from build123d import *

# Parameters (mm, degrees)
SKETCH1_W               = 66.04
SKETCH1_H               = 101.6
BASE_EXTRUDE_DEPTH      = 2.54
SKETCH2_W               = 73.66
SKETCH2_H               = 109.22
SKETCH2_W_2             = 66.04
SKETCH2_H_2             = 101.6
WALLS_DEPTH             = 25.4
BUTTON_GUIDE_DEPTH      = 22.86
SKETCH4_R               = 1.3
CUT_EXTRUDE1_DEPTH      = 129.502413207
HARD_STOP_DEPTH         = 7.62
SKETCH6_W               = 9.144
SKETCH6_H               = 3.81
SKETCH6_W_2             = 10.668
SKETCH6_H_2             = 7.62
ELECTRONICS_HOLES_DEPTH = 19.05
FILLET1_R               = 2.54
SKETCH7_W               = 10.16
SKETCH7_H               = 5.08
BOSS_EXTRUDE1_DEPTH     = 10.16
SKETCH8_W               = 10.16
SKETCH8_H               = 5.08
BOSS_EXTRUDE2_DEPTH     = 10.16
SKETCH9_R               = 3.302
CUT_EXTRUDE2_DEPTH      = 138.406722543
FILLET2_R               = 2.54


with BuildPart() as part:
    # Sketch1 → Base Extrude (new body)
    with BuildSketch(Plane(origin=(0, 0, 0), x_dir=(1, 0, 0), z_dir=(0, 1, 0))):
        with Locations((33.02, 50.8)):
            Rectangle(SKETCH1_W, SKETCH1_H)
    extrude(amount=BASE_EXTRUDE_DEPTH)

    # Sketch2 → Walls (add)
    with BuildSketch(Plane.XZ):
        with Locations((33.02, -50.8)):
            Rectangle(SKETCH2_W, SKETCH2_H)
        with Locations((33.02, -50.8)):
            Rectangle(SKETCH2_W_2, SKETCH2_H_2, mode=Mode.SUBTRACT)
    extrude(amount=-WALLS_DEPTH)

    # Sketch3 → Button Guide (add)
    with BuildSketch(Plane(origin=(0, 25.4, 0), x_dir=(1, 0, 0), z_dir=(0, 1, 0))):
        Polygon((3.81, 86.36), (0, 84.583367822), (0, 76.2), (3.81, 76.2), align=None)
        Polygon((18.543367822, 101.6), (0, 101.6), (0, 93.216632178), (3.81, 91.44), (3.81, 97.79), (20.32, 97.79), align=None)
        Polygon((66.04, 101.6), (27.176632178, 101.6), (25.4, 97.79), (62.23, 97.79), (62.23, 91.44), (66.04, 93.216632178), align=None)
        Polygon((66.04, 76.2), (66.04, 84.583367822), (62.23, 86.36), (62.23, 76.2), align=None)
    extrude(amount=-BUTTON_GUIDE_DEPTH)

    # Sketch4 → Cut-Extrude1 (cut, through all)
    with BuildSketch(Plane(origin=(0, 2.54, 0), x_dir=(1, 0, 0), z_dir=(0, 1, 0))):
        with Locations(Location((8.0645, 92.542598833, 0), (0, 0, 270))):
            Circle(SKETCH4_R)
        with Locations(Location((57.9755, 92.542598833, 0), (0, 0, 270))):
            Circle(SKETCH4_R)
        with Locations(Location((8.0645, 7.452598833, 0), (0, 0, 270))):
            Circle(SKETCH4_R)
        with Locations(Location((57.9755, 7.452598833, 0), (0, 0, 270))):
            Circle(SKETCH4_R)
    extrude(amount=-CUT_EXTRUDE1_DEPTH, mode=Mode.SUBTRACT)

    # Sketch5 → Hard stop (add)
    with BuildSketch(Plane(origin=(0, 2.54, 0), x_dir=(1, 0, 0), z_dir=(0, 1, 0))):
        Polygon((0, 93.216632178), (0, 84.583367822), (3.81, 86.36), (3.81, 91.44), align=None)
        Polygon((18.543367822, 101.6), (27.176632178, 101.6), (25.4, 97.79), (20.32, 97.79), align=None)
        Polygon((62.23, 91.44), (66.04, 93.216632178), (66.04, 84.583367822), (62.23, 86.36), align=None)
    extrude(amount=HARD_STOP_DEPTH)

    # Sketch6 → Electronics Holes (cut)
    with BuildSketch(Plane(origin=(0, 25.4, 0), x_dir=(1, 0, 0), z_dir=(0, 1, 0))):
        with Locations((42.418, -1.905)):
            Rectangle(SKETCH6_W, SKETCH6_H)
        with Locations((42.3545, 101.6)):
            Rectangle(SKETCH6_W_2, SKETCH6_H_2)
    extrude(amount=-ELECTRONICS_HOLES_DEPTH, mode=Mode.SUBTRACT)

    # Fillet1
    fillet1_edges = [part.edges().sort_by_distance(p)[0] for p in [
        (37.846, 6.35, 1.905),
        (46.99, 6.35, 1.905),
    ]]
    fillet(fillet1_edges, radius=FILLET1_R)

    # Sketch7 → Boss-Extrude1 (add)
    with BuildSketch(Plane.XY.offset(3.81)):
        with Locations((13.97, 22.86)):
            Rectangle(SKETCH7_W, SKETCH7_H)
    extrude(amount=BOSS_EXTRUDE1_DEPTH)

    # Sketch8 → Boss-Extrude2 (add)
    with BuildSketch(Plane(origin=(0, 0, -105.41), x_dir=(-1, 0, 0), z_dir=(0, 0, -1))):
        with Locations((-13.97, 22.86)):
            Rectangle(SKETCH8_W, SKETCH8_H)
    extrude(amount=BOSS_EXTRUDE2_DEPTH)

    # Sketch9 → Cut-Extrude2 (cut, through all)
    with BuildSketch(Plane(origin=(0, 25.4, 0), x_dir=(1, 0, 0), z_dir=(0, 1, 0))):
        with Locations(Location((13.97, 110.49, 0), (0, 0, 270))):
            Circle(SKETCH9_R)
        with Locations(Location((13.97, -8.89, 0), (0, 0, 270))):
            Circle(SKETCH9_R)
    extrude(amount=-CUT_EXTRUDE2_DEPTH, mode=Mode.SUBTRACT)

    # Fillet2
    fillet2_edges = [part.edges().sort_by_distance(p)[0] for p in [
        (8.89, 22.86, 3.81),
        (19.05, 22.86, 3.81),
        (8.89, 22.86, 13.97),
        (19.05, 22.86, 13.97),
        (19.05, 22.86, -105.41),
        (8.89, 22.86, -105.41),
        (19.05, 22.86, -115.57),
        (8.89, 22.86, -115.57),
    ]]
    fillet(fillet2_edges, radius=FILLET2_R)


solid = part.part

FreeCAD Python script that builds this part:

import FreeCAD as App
import Part
import Sketcher
from FreeCAD import Vector
Q = App.Units.Quantity


def edges_at(feature, points):
    """Names of the edges that pass closest to the given points."""
    edges = feature.Shape.Edges
    near = lambda p: min(range(len(edges)), key=lambda i: edges[i].distToShape(Part.Vertex(*p))[0])
    return sorted({f"Edge{near(p) + 1}" for p in points})


def add_polygon(sketch, points):
    """Adds a closed chain of lines whose ends are joined by coincident constraints."""
    first, n = sketch.GeometryCount, len(points)
    for a, b in zip(points, points[1:] + points[:1]):
        sketch.addGeometry(Part.LineSegment(App.Vector(*a, 0), App.Vector(*b, 0)), False)
    for i in range(n):
        sketch.addConstraint(Sketcher.Constraint("Coincident", first + i, 2, first + (i + 1) % n, 1))

doc = App.newDocument("Part")
body = doc.addObject("PartDesign::Body", "Body")

sketch1 = body.newObject("Sketcher::SketchObject", "Sketch")
sketch1.AttachmentSupport = (doc.getObject("XZ_Plane"), [""])
sketch1.MapMode = "FlatFace"
add_polygon(sketch1, [(0, -102), (0, 0), (66, 0), (66, -102)])
sketch1.addConstraint(Sketcher.Constraint("Vertical", 0))
sketch1.addConstraint(Sketcher.Constraint("Horizontal", 1))
sketch1.addConstraint(Sketcher.Constraint("Vertical", 2))
sketch1.addConstraint(Sketcher.Constraint("Horizontal", 3))
sketch1.addConstraint(Sketcher.Constraint("Coincident", 0, 2, -1, 1))
sketch1.addConstraint(Sketcher.Constraint("DistanceY", 0, 1, 0, 2, Q("4 in")))
sketch1.addConstraint(Sketcher.Constraint("DistanceX", 1, 1, 1, 2, Q("2.6 in")))
pad1 = body.newObject("PartDesign::Pad", "Pad")
pad1.Profile = sketch1
pad1.Length = Q("0.1 in")
pad1.Reversed = True

sketch2 = body.newObject("Sketcher::SketchObject", "Sketch001")
sketch2.AttachmentSupport = (doc.getObject("XZ_Plane"), [""])
sketch2.MapMode = "FlatFace"
add_polygon(sketch2, [(-4, 4), (-4, -105), (70, -105), (70, 4)])
add_polygon(sketch2, [(66, -102), (0, -102), (0, 0), (66, 0)])
sketch2.addConstraint(Sketcher.Constraint("Vertical", 0))
sketch2.addConstraint(Sketcher.Constraint("Horizontal", 1))
sketch2.addConstraint(Sketcher.Constraint("Vertical", 2))
sketch2.addConstraint(Sketcher.Constraint("Horizontal", 3))
sketch2.addConstraint(Sketcher.Constraint("Horizontal", 4))
sketch2.addConstraint(Sketcher.Constraint("Vertical", 5))
sketch2.addConstraint(Sketcher.Constraint("Horizontal", 6))
sketch2.addConstraint(Sketcher.Constraint("Vertical", 7))
sketch2.addConstraint(Sketcher.Constraint("Coincident", 5, 2, -1, 1))
sketch2.addConstraint(Sketcher.Constraint("DistanceY", 5, 1, 5, 2, Q("4 in")))
sketch2.addConstraint(Sketcher.Constraint("DistanceX", 1, 1, 1, 2, Q("2.9 in")))
sketch2.addConstraint(Sketcher.Constraint("DistanceX", 4, 2, 4, 1, Q("2.6 in")))
sketch2.addConstraint(Sketcher.Constraint("DistanceY", 0, 2, 0, 1, Q("4.3 in")))
sketch2.addConstraint(Sketcher.Constraint("DistanceX", 0, 2, -1, 1, Q("0.15 in")))
sketch2.addConstraint(Sketcher.Constraint("DistanceY", 0, 2, -1, 1, Q("4.15 in")))
pad2 = body.newObject("PartDesign::Pad", "Pad001")
pad2.Profile = sketch2
pad2.Length = Q("1 in")
pad2.Reversed = True

sketch3 = body.newObject("Sketcher::SketchObject", "Sketch002")
sketch3.AttachmentSupport = (doc.getObject("XZ_Plane"), [""])
sketch3.MapMode = "FlatFace"
sketch3.AttachmentOffset = App.Placement(Vector(0, 0, -1 * 25.4), App.Rotation())
add_polygon(sketch3, [(3.8, -86.4), (0, -84.6), (0, -76.2), (3.8, -76.2)])
add_polygon(sketch3, [(18.5, -101.6), (0, -101.6), (0, -93.2), (3.8, -91.4), (3.8, -97.8), (20.3, -97.8)])
add_polygon(sketch3, [(66, -101.6), (27.2, -101.6), (25.4, -97.8), (62.2, -97.8), (62.2, -91.4), (66, -93.2)])
add_polygon(sketch3, [(66, -76.2), (66, -84.6), (62.2, -86.4), (62.2, -76.2)])
sketch3.addConstraint(Sketcher.Constraint("Vertical", 1))
sketch3.addConstraint(Sketcher.Constraint("Horizontal", 2))
sketch3.addConstraint(Sketcher.Constraint("Vertical", 3))
sketch3.addConstraint(Sketcher.Constraint("Horizontal", 4))
sketch3.addConstraint(Sketcher.Constraint("Vertical", 5))
sketch3.addConstraint(Sketcher.Constraint("Vertical", 7))
sketch3.addConstraint(Sketcher.Constraint("Horizontal", 8))
sketch3.addConstraint(Sketcher.Constraint("Horizontal", 10))
sketch3.addConstraint(Sketcher.Constraint("Horizontal", 12))
sketch3.addConstraint(Sketcher.Constraint("Vertical", 13))
sketch3.addConstraint(Sketcher.Constraint("Vertical", 15))
sketch3.addConstraint(Sketcher.Constraint("Vertical", 16))
sketch3.addConstraint(Sketcher.Constraint("Vertical", 18))
sketch3.addConstraint(Sketcher.Constraint("Horizontal", 19))
sketch3.addConstraint(Sketcher.Constraint("PointOnObject", 0, 2, -2))
sketch3.addConstraint(Sketcher.Constraint("PointOnObject", 4, 2, -2))
sketch3.addConstraint(Sketcher.Constraint("Perpendicular", 0, 9))
sketch3.addConstraint(Sketcher.Constraint("Perpendicular", 6, 11))
sketch3.addConstraint(Sketcher.Constraint("Perpendicular", 9, 14))
sketch3.addConstraint(Sketcher.Constraint("Perpendicular", 11, 17))
sketch3.addConstraint(Sketcher.Constraint("Horizontal", 9, 2, 10, 2))
sketch3.addConstraint(Sketcher.Constraint("Horizontal", 8, 2, 11, 2))
sketch3.addConstraint(Sketcher.Constraint("Horizontal", 6, 2, 13, 2))
sketch3.addConstraint(Sketcher.Constraint("Horizontal", 5, 2, 14, 2))
sketch3.addConstraint(Sketcher.Constraint("Horizontal", 0, 2, 16, 2))
sketch3.addConstraint(Sketcher.Constraint("Horizontal", 3, 2, 17, 2))
sketch3.addConstraint(Sketcher.Constraint("Horizontal", 2, 2, 18, 2))
sketch3.addConstraint(Sketcher.Constraint("Vertical", 3, 2, 6, 2))
sketch3.addConstraint(Sketcher.Constraint("Vertical", 15, 2, 16, 2))
sketch3.addConstraint(Sketcher.Constraint("Vertical", 13, 2, 17, 2))
sketch3.addConstraint(Sketcher.Constraint("Equal", 1, 5))
sketch3.addConstraint(Sketcher.Constraint("Equal", 6, 9))
sketch3.addConstraint(Sketcher.Constraint("DistanceY", 3, 2, 3, 1, Q("0.4 in")))
sketch3.addConstraint(Sketcher.Constraint("DistanceY", 1, 2, -1, 1, Q("3 in")))
sketch3.addConstraint(Sketcher.Constraint("DistanceY", 4, 2, -1, 1, Q("4 in")))
sketch3.addConstraint(Sketcher.Constraint("DistanceX", -1, 1, 11, 2, Q("1 in")))
sketch3.addConstraint(Sketcher.Constraint("Angle", 0, Q("155 deg")))
sketch3.addConstraint(Sketcher.Constraint("DistanceX", 2, 1, 2, 2, Q("0.15 in")))
sketch3.addConstraint(Sketcher.Constraint("DistanceX", 8, 1, 8, 2, Q("0.65 in")))
sketch3.addConstraint(Sketcher.Constraint("DistanceX", 12, 1, 12, 2, Q("1.45 in")))
pad3 = body.newObject("PartDesign::Pad", "Pad002")
pad3.Profile = sketch3
pad3.Length = Q("0.9 in")

sketch4 = body.newObject("Sketcher::SketchObject", "Sketch003")
sketch4.AttachmentSupport = (doc.getObject("XZ_Plane"), [""])
sketch4.MapMode = "FlatFace"
sketch4.AttachmentOffset = App.Placement(Vector(0, 0, -0.1 * 25.4), App.Rotation())
sketch4.addGeometry(Part.Circle(Vector(8.1, -92.5, 0), Vector(0, 0, 1), 1.3), False)
sketch4.addGeometry(Part.Circle(Vector(58, -92.5, 0), Vector(0, 0, 1), 1.3), False)
sketch4.addGeometry(Part.Circle(Vector(8.1, -7.5, 0), Vector(0, 0, 1), 1.3), False)
sketch4.addGeometry(Part.Circle(Vector(58, -7.5, 0), Vector(0, 0, 1), 1.3), False)
sketch4.addConstraint(Sketcher.Constraint("Equal", 0, 1))
sketch4.addConstraint(Sketcher.Constraint("Equal", 1, 2))
sketch4.addConstraint(Sketcher.Constraint("Equal", 2, 3))
sketch4.addConstraint(Sketcher.Constraint("Horizontal", 0, 3, 1, 3))
sketch4.addConstraint(Sketcher.Constraint("Horizontal", 2, 3, 3, 3))
sketch4.addConstraint(Sketcher.Constraint("Vertical", 0, 3, 2, 3))
sketch4.addConstraint(Sketcher.Constraint("Vertical", 1, 3, 3, 3))
sketch4.addConstraint(Sketcher.Constraint("Diameter", 0, 2.6))
sketch4.addConstraint(Sketcher.Constraint("DistanceY", 0, 3, 2, 3, Q("3.35 in")))
sketch4.addConstraint(Sketcher.Constraint("DistanceX", 0, 3, 1, 3, Q("1.965 in")))
sketch4.addConstraint(Sketcher.Constraint("DistanceX", -1, 1, 0, 3, Q("0.3175 in")))
sketch4.addConstraint(Sketcher.Constraint("DistanceY", 0, 3, -1, 1, 92.542599))
pocket1 = body.newObject("PartDesign::Pocket", "Pocket")
pocket1.Profile = sketch4
pocket1.Type = "ThroughAll"
pocket1.Reversed = True

sketch5 = body.newObject("Sketcher::SketchObject", "Sketch004")
sketch5.AttachmentSupport = (doc.getObject("XZ_Plane"), [""])
sketch5.MapMode = "FlatFace"
sketch5.AttachmentOffset = App.Placement(Vector(0, 0, -0.1 * 25.4), App.Rotation())
add_polygon(sketch5, [(0, -93.2), (0, -84.6), (3.8, -86.4), (3.8, -91.4)])
add_polygon(sketch5, [(27.2, -101.6), (18.5, -101.6), (20.3, -97.8), (25.4, -97.8)])
add_polygon(sketch5, [(66, -93.2), (62.2, -91.4), (62.2, -86.4), (66, -84.6)])
sketch5.addConstraint(Sketcher.Constraint("Vertical", 0))
sketch5.addConstraint(Sketcher.Constraint("Vertical", 2))
sketch5.addConstraint(Sketcher.Constraint("Horizontal", 4))
sketch5.addConstraint(Sketcher.Constraint("Horizontal", 6))
sketch5.addConstraint(Sketcher.Constraint("Vertical", 9))
sketch5.addConstraint(Sketcher.Constraint("Vertical", 11))
sketch5.addConstraint(Sketcher.Constraint("PointOnObject", 0, 2, -2))
sketch5.addConstraint(Sketcher.Constraint("Perpendicular", 1, 5))
sketch5.addConstraint(Sketcher.Constraint("Perpendicular", 3, 7))
sketch5.addConstraint(Sketcher.Constraint("Perpendicular", 5, 8))
sketch5.addConstraint(Sketcher.Constraint("Perpendicular", 7, 10))
sketch5.addConstraint(Sketcher.Constraint("Horizontal", 2, 2, 8, 2))
sketch5.addConstraint(Sketcher.Constraint("Horizontal", 1, 2, 9, 2))
sketch5.addConstraint(Sketcher.Constraint("Horizontal", 0, 2, 10, 2))
sketch5.addConstraint(Sketcher.Constraint("Horizontal", 3, 2, 11, 2))
sketch5.addConstraint(Sketcher.Constraint("Equal", 4, 0))
sketch5.addConstraint(Sketcher.Constraint("Equal", 6, 2))
sketch5.addConstraint(Sketcher.Constraint("DistanceX", 6, 1, 6, 2, Q("0.2 in")))
sketch5.addConstraint(Sketcher.Constraint("DistanceY", 4, 2, -1, 1, Q("4 in")))
sketch5.addConstraint(Sketcher.Constraint("DistanceX", -1, 1, 6, 2, Q("1 in")))
sketch5.addConstraint(Sketcher.Constraint("Angle", 1, Q("-25 deg")))
sketch5.addConstraint(Sketcher.Constraint("DistanceY", 1, 2, -1, 1, Q("3.4 in")))
sketch5.addConstraint(Sketcher.Constraint("DistanceX", -1, 1, 10, 2, Q("2.6 in")))
sketch5.addConstraint(Sketcher.Constraint("DistanceX", 2, 2, 8, 2, Q("2.3 in")))
pad4 = body.newObject("PartDesign::Pad", "Pad003")
pad4.Profile = sketch5
pad4.Length = Q("0.3 in")
pad4.Reversed = True

sketch6 = body.newObject("Sketcher::SketchObject", "Sketch005")
sketch6.AttachmentSupport = (doc.getObject("XZ_Plane"), [""])
sketch6.MapMode = "FlatFace"
sketch6.AttachmentOffset = App.Placement(Vector(0, 0, -1 * 25.4), App.Rotation())
add_polygon(sketch6, [(37.8, 0), (37.8, 3.8), (47, 3.8), (47, 0)])
add_polygon(sketch6, [(37, -105.4), (37, -97.8), (47.7, -97.8), (47.7, -105.4)])
sketch6.addConstraint(Sketcher.Constraint("Vertical", 0))
sketch6.addConstraint(Sketcher.Constraint("Horizontal", 1))
sketch6.addConstraint(Sketcher.Constraint("Vertical", 2))
sketch6.addConstraint(Sketcher.Constraint("Horizontal", 3))
sketch6.addConstraint(Sketcher.Constraint("Vertical", 4))
sketch6.addConstraint(Sketcher.Constraint("Horizontal", 5))
sketch6.addConstraint(Sketcher.Constraint("Vertical", 6))
sketch6.addConstraint(Sketcher.Constraint("Horizontal", 7))
sketch6.addConstraint(Sketcher.Constraint("PointOnObject", 2, 2, -1))
sketch6.addConstraint(Sketcher.Constraint("DistanceY", 4, 1, 4, 2, Q("0.3 in")))
sketch6.addConstraint(Sketcher.Constraint("DistanceY", 4, 2, 0, 2, Q("4 in")))
sketch6.addConstraint(Sketcher.Constraint("DistanceX", 1, 1, 1, 2, Q("0.36 in")))
sketch6.addConstraint(Sketcher.Constraint("DistanceX", 5, 1, 5, 2, Q("0.42 in")))
sketch6.addConstraint(Sketcher.Constraint("DistanceY", 0, 1, 0, 2, Q("0.15 in")))
sketch6.addConstraint(Sketcher.Constraint("DistanceX", -1, 1, 0, 2, Q("1.49 in")))
sketch6.addConstraint(Sketcher.Constraint("DistanceX", -1, 1, 4, 2, Q("1.4575 in")))
pocket2 = body.newObject("PartDesign::Pocket", "Pocket001")
pocket2.Profile = sketch6
pocket2.Length = Q("0.75 in")
pocket2.Reversed = True
doc.recompute()

fillet = body.newObject("PartDesign::Fillet", "Fillet")
fillet.Base = (pocket2, edges_at(pocket2, [(37.846, 6.35, 1.905), (46.99, 6.35, 1.905)]))
fillet.Radius = Q("0.1 in")

sketch7 = body.newObject("Sketcher::SketchObject", "Sketch006")
sketch7.AttachmentSupport = (doc.getObject("XY_Plane"), [""])
sketch7.MapMode = "FlatFace"
sketch7.AttachmentOffset = App.Placement(Vector(0, 0, 0.15 * 25.4), App.Rotation())
add_polygon(sketch7, [(9, 25), (9, 20), (19, 20), (19, 25)])
sketch7.addConstraint(Sketcher.Constraint("Vertical", 0))
sketch7.addConstraint(Sketcher.Constraint("Horizontal", 1))
sketch7.addConstraint(Sketcher.Constraint("Vertical", 2))
sketch7.addConstraint(Sketcher.Constraint("Horizontal", 3))
sketch7.addConstraint(Sketcher.Constraint("DistanceX", 1, 1, 1, 2, Q("0.4 in")))
sketch7.addConstraint(Sketcher.Constraint("DistanceY", 0, 2, 0, 1, Q("0.2 in")))
sketch7.addConstraint(Sketcher.Constraint("DistanceY", -1, 1, 2, 2, Q("1 in")))
sketch7.addConstraint(Sketcher.Constraint("DistanceX", -1, 1, 0, 2, Q("0.35 in")))
pad5 = body.newObject("PartDesign::Pad", "Pad004")
pad5.Profile = sketch7
pad5.Length = Q("0.4 in")

sketch8 = body.newObject("Sketcher::SketchObject", "Sketch007")
sketch8.AttachmentSupport = (doc.getObject("XY_Plane"), [""])
sketch8.MapMode = "FlatFace"
sketch8.AttachmentOffset = App.Placement(Vector(0, 0, -4.15 * 25.4), App.Rotation())
add_polygon(sketch8, [(19, 25), (19, 20), (9, 20), (9, 25)])
sketch8.addConstraint(Sketcher.Constraint("Vertical", 0))
sketch8.addConstraint(Sketcher.Constraint("Horizontal", 1))
sketch8.addConstraint(Sketcher.Constraint("Vertical", 2))
sketch8.addConstraint(Sketcher.Constraint("Horizontal", 3))
sketch8.addConstraint(Sketcher.Constraint("DistanceX", 1, 2, 1, 1, Q("0.4 in")))
sketch8.addConstraint(Sketcher.Constraint("DistanceY", 0, 2, 0, 1, Q("0.2 in")))
sketch8.addConstraint(Sketcher.Constraint("DistanceY", -1, 1, 2, 2, Q("1 in")))
sketch8.addConstraint(Sketcher.Constraint("DistanceX", -1, 1, 0, 2, Q("0.75 in")))
pad6 = body.newObject("PartDesign::Pad", "Pad005")
pad6.Profile = sketch8
pad6.Length = Q("0.4 in")
pad6.Reversed = True

sketch9 = body.newObject("Sketcher::SketchObject", "Sketch008")
sketch9.AttachmentSupport = (doc.getObject("XZ_Plane"), [""])
sketch9.MapMode = "FlatFace"
sketch9.AttachmentOffset = App.Placement(Vector(0, 0, -1 * 25.4), App.Rotation())
sketch9.addGeometry(Part.Circle(Vector(14, -110.5, 0), Vector(0, 0, 1), 3.3), False)
sketch9.addGeometry(Part.Circle(Vector(14, 8.9, 0), Vector(0, 0, 1), 3.3), False)
sketch9.addConstraint(Sketcher.Constraint("Equal", 0, 1))
sketch9.addConstraint(Sketcher.Constraint("Vertical", 0, 3, 1, 3))
sketch9.addConstraint(Sketcher.Constraint("Diameter", 0, Q("0.26 in")))
sketch9.addConstraint(Sketcher.Constraint("DistanceY", 0, 3, 1, 3, Q("4.7 in")))
sketch9.addConstraint(Sketcher.Constraint("DistanceX", -1, 1, 0, 3, Q("0.55 in")))
sketch9.addConstraint(Sketcher.Constraint("DistanceY", 0, 3, -1, 1, Q("4.35 in")))
pocket3 = body.newObject("PartDesign::Pocket", "Pocket002")
pocket3.Profile = sketch9
pocket3.Type = "ThroughAll"
pocket3.Reversed = True
doc.recompute()

fillet2 = body.newObject("PartDesign::Fillet", "Fillet001")
fillet2.Base = (pocket3, edges_at(pocket3, [
    (8.89, 22.86, 3.81),
    (19.05, 22.86, 3.81),
    (8.89, 22.86, 13.97),
    (19.05, 22.86, 13.97),
    (19.05, 22.86, -105.41),
    (8.89, 22.86, -105.41),
    (19.05, 22.86, -115.57),
    (8.89, 22.86, -115.57),
]))
fillet2.Radius = Q("0.1 in")

doc.recompute()
